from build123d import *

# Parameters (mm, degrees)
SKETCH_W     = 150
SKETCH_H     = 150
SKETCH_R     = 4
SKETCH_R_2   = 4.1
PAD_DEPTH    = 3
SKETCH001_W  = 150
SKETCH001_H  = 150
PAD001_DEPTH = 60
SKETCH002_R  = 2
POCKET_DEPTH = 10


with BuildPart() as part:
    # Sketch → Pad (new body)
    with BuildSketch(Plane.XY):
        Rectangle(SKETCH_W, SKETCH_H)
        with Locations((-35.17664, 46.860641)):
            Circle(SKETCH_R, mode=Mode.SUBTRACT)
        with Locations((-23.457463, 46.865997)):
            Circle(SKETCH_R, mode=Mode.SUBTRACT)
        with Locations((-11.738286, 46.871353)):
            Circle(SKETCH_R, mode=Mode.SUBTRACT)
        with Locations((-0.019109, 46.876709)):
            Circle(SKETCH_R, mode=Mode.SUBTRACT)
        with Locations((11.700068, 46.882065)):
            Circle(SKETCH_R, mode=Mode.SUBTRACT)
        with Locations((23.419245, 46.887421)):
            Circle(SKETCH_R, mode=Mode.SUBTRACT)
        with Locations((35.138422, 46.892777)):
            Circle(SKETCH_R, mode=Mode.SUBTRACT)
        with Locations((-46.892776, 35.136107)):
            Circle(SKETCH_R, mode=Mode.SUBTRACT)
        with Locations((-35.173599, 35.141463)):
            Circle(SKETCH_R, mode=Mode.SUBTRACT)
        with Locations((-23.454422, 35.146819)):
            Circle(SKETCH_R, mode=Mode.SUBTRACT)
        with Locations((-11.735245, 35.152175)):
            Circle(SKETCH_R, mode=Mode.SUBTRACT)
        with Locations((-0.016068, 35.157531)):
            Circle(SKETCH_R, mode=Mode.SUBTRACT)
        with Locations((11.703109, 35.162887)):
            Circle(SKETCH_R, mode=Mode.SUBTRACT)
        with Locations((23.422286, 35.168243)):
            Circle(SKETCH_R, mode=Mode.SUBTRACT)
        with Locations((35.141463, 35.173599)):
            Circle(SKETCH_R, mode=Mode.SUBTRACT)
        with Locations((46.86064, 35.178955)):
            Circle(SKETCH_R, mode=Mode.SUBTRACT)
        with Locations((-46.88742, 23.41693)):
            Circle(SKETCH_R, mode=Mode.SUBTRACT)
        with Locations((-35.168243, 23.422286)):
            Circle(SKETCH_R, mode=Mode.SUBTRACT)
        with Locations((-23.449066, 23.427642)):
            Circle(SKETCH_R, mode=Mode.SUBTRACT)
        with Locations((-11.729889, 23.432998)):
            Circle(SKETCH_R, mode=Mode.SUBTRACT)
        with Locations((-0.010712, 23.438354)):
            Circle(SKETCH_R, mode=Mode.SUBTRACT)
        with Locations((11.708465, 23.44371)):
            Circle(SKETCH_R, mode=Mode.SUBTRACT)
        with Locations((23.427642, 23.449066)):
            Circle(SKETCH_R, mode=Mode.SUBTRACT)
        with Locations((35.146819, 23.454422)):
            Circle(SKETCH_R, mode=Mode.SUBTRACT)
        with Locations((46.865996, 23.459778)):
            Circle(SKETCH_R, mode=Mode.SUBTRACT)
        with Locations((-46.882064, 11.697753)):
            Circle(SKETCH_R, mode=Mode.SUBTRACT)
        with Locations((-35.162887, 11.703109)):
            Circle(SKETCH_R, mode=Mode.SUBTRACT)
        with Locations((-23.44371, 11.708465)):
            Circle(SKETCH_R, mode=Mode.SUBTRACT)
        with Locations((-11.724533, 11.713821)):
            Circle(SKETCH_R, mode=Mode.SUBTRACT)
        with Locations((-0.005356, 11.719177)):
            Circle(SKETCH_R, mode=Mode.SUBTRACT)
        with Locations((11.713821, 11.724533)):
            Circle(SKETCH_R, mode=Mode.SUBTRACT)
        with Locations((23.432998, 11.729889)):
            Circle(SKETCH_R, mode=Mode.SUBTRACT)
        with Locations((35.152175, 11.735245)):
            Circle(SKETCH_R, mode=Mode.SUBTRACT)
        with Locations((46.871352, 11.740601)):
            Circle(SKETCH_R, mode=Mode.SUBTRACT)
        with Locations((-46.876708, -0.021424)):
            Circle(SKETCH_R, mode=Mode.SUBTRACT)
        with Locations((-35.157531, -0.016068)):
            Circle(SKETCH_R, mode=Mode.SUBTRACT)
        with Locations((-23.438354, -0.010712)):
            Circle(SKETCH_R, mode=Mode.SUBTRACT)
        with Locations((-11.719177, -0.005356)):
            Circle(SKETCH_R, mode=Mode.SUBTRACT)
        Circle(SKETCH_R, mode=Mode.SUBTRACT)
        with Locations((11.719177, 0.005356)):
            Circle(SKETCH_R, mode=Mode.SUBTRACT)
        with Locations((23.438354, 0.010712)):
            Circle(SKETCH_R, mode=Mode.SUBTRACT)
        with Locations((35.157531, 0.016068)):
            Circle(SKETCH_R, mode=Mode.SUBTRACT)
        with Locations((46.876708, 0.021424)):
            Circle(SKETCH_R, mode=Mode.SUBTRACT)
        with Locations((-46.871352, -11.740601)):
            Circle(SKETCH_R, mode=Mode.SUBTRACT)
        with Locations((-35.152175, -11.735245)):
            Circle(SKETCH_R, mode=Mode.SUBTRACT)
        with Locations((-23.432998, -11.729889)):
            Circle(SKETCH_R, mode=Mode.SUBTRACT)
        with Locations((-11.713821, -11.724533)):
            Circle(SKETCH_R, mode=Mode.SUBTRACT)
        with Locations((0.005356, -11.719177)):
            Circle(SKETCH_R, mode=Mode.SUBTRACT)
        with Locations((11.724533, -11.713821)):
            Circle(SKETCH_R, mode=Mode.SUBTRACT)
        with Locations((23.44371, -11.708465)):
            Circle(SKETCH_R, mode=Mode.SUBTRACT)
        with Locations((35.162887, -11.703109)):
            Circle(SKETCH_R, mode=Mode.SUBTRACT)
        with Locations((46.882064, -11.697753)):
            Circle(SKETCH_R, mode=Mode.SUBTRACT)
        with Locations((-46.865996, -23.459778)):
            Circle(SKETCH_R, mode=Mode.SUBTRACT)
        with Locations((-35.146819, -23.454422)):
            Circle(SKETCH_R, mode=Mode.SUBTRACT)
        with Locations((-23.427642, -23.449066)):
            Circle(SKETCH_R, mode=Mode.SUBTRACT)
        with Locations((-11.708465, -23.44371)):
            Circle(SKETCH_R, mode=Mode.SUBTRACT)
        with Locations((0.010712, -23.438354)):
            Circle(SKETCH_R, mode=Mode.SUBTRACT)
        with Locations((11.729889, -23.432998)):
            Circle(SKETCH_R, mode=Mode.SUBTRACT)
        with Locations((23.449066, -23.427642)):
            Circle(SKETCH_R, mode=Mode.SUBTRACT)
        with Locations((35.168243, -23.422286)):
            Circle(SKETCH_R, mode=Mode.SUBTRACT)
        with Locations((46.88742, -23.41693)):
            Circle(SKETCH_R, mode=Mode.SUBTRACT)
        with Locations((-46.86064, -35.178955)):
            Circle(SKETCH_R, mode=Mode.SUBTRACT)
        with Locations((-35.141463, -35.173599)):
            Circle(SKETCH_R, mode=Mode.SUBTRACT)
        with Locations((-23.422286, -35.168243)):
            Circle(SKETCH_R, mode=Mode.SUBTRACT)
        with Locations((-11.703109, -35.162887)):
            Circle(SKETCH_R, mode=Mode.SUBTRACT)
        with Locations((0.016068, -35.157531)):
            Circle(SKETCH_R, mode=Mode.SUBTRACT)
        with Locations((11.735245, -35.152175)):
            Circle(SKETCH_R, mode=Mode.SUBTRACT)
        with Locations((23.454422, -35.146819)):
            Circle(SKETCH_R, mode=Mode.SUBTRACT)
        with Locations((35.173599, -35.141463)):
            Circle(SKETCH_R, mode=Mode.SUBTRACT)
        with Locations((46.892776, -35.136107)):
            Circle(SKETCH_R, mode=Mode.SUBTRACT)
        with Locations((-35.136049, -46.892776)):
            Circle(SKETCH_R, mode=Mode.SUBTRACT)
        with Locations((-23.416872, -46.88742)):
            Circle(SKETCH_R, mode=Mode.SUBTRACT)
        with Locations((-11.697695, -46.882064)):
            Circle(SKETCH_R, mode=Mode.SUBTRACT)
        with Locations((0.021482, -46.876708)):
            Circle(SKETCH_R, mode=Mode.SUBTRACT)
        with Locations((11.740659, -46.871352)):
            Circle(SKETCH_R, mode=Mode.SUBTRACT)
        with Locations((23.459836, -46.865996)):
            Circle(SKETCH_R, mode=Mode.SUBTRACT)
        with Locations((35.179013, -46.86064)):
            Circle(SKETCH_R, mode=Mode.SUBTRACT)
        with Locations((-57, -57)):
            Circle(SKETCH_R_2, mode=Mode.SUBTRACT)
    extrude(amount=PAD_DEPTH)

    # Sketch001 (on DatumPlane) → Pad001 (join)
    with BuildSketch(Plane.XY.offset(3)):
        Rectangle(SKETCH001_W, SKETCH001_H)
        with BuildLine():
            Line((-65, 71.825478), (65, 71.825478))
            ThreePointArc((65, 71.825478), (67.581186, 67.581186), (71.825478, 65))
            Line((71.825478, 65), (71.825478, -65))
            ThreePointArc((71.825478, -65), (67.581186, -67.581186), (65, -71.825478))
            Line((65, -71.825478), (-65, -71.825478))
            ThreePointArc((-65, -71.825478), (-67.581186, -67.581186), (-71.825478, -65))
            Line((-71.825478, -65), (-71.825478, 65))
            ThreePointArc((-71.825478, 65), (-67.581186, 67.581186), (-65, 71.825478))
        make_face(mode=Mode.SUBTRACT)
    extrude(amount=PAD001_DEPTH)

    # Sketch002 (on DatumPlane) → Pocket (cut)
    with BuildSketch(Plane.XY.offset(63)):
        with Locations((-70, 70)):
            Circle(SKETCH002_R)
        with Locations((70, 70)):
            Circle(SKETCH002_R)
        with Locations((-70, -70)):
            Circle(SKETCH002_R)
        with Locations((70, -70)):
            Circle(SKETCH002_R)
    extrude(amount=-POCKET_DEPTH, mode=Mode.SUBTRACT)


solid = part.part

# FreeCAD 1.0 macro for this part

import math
import FreeCAD as App
import Part
import Sketcher


def add_polygon(sketch, points):
    """Adds a closed chain of lines whose ends are joined by coincident constraints."""
    first, n = sketch.GeometryCount, len(points)
    for a, b in zip(points, points[1:] + points[:1]):
        sketch.addGeometry(Part.LineSegment(App.Vector(*a, 0), App.Vector(*b, 0)), False)
    for i in range(n):
        sketch.addConstraint(Sketcher.Constraint("Coincident", first + i, 2, first + (i + 1) % n, 1))

doc = App.newDocument("Part")
params = doc.addObject("Spreadsheet::Sheet", "Params")
for row, (alias, value) in enumerate([
    ("sketch1_diameter", "8 mm"),
    ("sketch1_diameter2", "8.2 mm"),
    ("sketch1_width", "150 mm"),
    ("pad1_length", "3 mm"),
    ("sketch2_width", "150 mm"),
    ("sketch2_width2", "130 mm"),
    ("pad2_length", "60 mm"),
    ("sketch3_diameter", "4 mm"),
    ("pocket1_length", "10 mm"),
], start=1):
    params.set(f"A{row}", alias)
    params.set(f"B{row}", "=" + value)
    params.setAlias(f"B{row}", alias)

body = doc.addObject("PartDesign::Body", "Body")

sketch1 = body.newObject("Sketcher::SketchObject", "Sketch")
sketch1.AttachmentSupport = (doc.getObject("XY_Plane"), [""])
sketch1.MapMode = "FlatFace"
add_polygon(sketch1, [(-75, 75), (-75, -75), (75, -75), (75, 75)])
sketch1.addGeometry(Part.Circle(App.Vector(-57, -57, 0), App.Vector(0, 0, 1), 4.1), False)
sketch1.addGeometry(Part.Circle(App.Vector(-35.1, -46.9, 0), App.Vector(0, 0, 1), 4), False)
sketch1.addGeometry(Part.Circle(App.Vector(-46.9, -35.2, 0), App.Vector(0, 0, 1), 4), False)
sketch1.addGeometry(Part.Circle(App.Vector(-35.1, -35.2, 0), App.Vector(0, 0, 1), 4), False)
sketch1.addGeometry(Part.Circle(App.Vector(-23.4, -46.9, 0), App.Vector(0, 0, 1), 4), False)
sketch1.addGeometry(Part.Circle(App.Vector(-23.4, -35.2, 0), App.Vector(0, 0, 1), 4), False)
sketch1.addGeometry(Part.Circle(App.Vector(-11.7, -46.9, 0), App.Vector(0, 0, 1), 4), False)
sketch1.addGeometry(Part.Circle(App.Vector(-11.7, -35.2, 0), App.Vector(0, 0, 1), 4), False)
sketch1.addGeometry(Part.Circle(App.Vector(-46.9, -23.5, 0), App.Vector(0, 0, 1), 4), False)
sketch1.addGeometry(Part.Circle(App.Vector(-35.1, -23.5, 0), App.Vector(0, 0, 1), 4), False)
sketch1.addGeometry(Part.Circle(App.Vector(-46.9, -11.7, 0), App.Vector(0, 0, 1), 4), False)
sketch1.addGeometry(Part.Circle(App.Vector(-35.2, -11.7, 0), App.Vector(0, 0, 1), 4), False)
sketch1.addGeometry(Part.Circle(App.Vector(-23.4, -23.4, 0), App.Vector(0, 0, 1), 4), False)
sketch1.addGeometry(Part.Circle(App.Vector(-11.7, -23.4, 0), App.Vector(0, 0, 1), 4), False)
sketch1.addGeometry(Part.Circle(App.Vector(-23.4, -11.7, 0), App.Vector(0, 0, 1), 4), False)
sketch1.addGeometry(Part.Circle(App.Vector(-11.7, -11.7, 0), App.Vector(0, 0, 1), 4), False)
sketch1.addGeometry(Part.Circle(App.Vector(0, -46.9, 0), App.Vector(0, 0, 1), 4), False)
sketch1.addGeometry(Part.Circle(App.Vector(0, -35.2, 0), App.Vector(0, 0, 1), 4), False)
sketch1.addGeometry(Part.Circle(App.Vector(11.7, -46.9, 0), App.Vector(0, 0, 1), 4), False)
sketch1.addGeometry(Part.Circle(App.Vector(11.7, -35.2, 0), App.Vector(0, 0, 1), 4), False)
sketch1.addGeometry(Part.Circle(App.Vector(23.5, -46.9, 0), App.Vector(0, 0, 1), 4), False)
sketch1.addGeometry(Part.Circle(App.Vector(35.2, -46.9, 0), App.Vector(0, 0, 1), 4), False)
sketch1.addGeometry(Part.Circle(App.Vector(23.5, -35.1, 0), App.Vector(0, 0, 1), 4), False)
sketch1.addGeometry(Part.Circle(App.Vector(35.2, -35.1, 0), App.Vector(0, 0, 1), 4), False)
sketch1.addGeometry(Part.Circle(App.Vector(46.9, -35.1, 0), App.Vector(0, 0, 1), 4), False)
sketch1.addGeometry(Part.Circle(App.Vector(0, -23.4, 0), App.Vector(0, 0, 1), 4), False)
sketch1.addGeometry(Part.Circle(App.Vector(11.7, -23.4, 0), App.Vector(0, 0, 1), 4), False)
sketch1.addGeometry(Part.Circle(App.Vector(0, -11.7, 0), App.Vector(0, 0, 1), 4), False)
sketch1.addGeometry(Part.Circle(App.Vector(11.7, -11.7, 0), App.Vector(0, 0, 1), 4), False)
sketch1.addGeometry(Part.Circle(App.Vector(23.4, -23.4, 0), App.Vector(0, 0, 1), 4), False)
sketch1.addGeometry(Part.Circle(App.Vector(35.2, -23.4, 0), App.Vector(0, 0, 1), 4), False)
sketch1.addGeometry(Part.Circle(App.Vector(46.9, -23.4, 0), App.Vector(0, 0, 1), 4), False)
sketch1.addGeometry(Part.Circle(App.Vector(23.4, -11.7, 0), App.Vector(0, 0, 1), 4), False)
sketch1.addGeometry(Part.Circle(App.Vector(35.2, -11.7, 0), App.Vector(0, 0, 1), 4), False)
sketch1.addGeometry(Part.Circle(App.Vector(46.9, -11.7, 0), App.Vector(0, 0, 1), 4), False)
sketch1.addGeometry(Part.Circle(App.Vector(-46.9, 0, 0), App.Vector(0, 0, 1), 4), False)
sketch1.addGeometry(Part.Circle(App.Vector(-35.2, 0, 0), App.Vector(0, 0, 1), 4), False)
sketch1.addGeometry(Part.Circle(App.Vector(-46.9, 11.7, 0), App.Vector(0, 0, 1), 4), False)
sketch1.addGeometry(Part.Circle(App.Vector(-35.2, 11.7, 0), App.Vector(0, 0, 1), 4), False)
sketch1.addGeometry(Part.Circle(App.Vector(-23.4, 0, 0), App.Vector(0, 0, 1), 4), False)
sketch1.addGeometry(Part.Circle(App.Vector(-11.7, 0, 0), App.Vector(0, 0, 1), 4), False)
sketch1.addGeometry(Part.Circle(App.Vector(-23.4, 11.7, 0), App.Vector(0, 0, 1), 4), False)
sketch1.addGeometry(Part.Circle(App.Vector(-11.7, 11.7, 0), App.Vector(0, 0, 1), 4), False)
sketch1.addGeometry(Part.Circle(App.Vector(-46.9, 23.4, 0), App.Vector(0, 0, 1), 4), False)
sketch1.addGeometry(Part.Circle(App.Vector(-35.2, 23.4, 0), App.Vector(0, 0, 1), 4), False)
sketch1.addGeometry(Part.Circle(App.Vector(-46.9, 35.1, 0), App.Vector(0, 0, 1), 4), False)
sketch1.addGeometry(Part.Circle(App.Vector(-35.2, 35.1, 0), App.Vector(0, 0, 1), 4), False)
sketch1.addGeometry(Part.Circle(App.Vector(-35.2, 46.9, 0), App.Vector(0, 0, 1), 4), False)
sketch1.addGeometry(Part.Circle(App.Vector(-23.4, 23.4, 0), App.Vector(0, 0, 1), 4), False)
sketch1.addGeometry(Part.Circle(App.Vector(-23.5, 35.1, 0), App.Vector(0, 0, 1), 4), False)
sketch1.addGeometry(Part.Circle(App.Vector(-11.7, 23.4, 0), App.Vector(0, 0, 1), 4), False)
sketch1.addGeometry(Part.Circle(App.Vector(-11.7, 35.2, 0), App.Vector(0, 0, 1), 4), False)
sketch1.addGeometry(Part.Circle(App.Vector(-23.5, 46.9, 0), App.Vector(0, 0, 1), 4), False)
sketch1.addGeometry(Part.Circle(App.Vector(-11.7, 46.9, 0), App.Vector(0, 0, 1), 4), False)
sketch1.addGeometry(Part.Circle(App.Vector(0, 0, 0), App.Vector(0, 0, 1), 4), False)
sketch1.addGeometry(Part.Circle(App.Vector(11.7, 0, 0), App.Vector(0, 0, 1), 4), False)
sketch1.addGeometry(Part.Circle(App.Vector(0, 11.7, 0), App.Vector(0, 0, 1), 4), False)
sketch1.addGeometry(Part.Circle(App.Vector(11.7, 11.7, 0), App.Vector(0, 0, 1), 4), False)
sketch1.addGeometry(Part.Circle(App.Vector(23.4, 0, 0), App.Vector(0, 0, 1), 4), False)
sketch1.addGeometry(Part.Circle(App.Vector(35.2, 0, 0), App.Vector(0, 0, 1), 4), False)
sketch1.addGeometry(Part.Circle(App.Vector(46.9, 0, 0), App.Vector(0, 0, 1), 4), False)
sketch1.addGeometry(Part.Circle(App.Vector(23.4, 11.7, 0), App.Vector(0, 0, 1), 4), False)
sketch1.addGeometry(Part.Circle(App.Vector(35.2, 11.7, 0), App.Vector(0, 0, 1), 4), False)
sketch1.addGeometry(Part.Circle(App.Vector(46.9, 11.7, 0), App.Vector(0, 0, 1), 4), False)
sketch1.addGeometry(Part.Circle(App.Vector(0, 23.4, 0), App.Vector(0, 0, 1), 4), False)
sketch1.addGeometry(Part.Circle(App.Vector(0, 35.2, 0), App.Vector(0, 0, 1), 4), False)
sketch1.addGeometry(Part.Circle(App.Vector(11.7, 23.4, 0), App.Vector(0, 0, 1), 4), False)
sketch1.addGeometry(Part.Circle(App.Vector(11.7, 35.2, 0), App.Vector(0, 0, 1), 4), False)
sketch1.addGeometry(Part.Circle(App.Vector(0, 46.9, 0), App.Vector(0, 0, 1), 4), False)
sketch1.addGeometry(Part.Circle(App.Vector(11.7, 46.9, 0), App.Vector(0, 0, 1), 4), False)
sketch1.addGeometry(Part.Circle(App.Vector(23.4, 23.4, 0), App.Vector(0, 0, 1), 4), False)
sketch1.addGeometry(Part.Circle(App.Vector(35.1, 23.5, 0), App.Vector(0, 0, 1), 4), False)
sketch1.addGeometry(Part.Circle(App.Vector(23.4, 35.2, 0), App.Vector(0, 0, 1), 4), False)
sketch1.addGeometry(Part.Circle(App.Vector(35.1, 35.2, 0), App.Vector(0, 0, 1), 4), False)
sketch1.addGeometry(Part.Circle(App.Vector(46.9, 23.5, 0), App.Vector(0, 0, 1), 4), False)
sketch1.addGeometry(Part.Circle(App.Vector(46.9, 35.2, 0), App.Vector(0, 0, 1), 4), False)
sketch1.addGeometry(Part.Circle(App.Vector(23.4, 46.9, 0), App.Vector(0, 0, 1), 4), False)
sketch1.addGeometry(Part.Circle(App.Vector(35.1, 46.9, 0), App.Vector(0, 0, 1), 4), False)
sketch1.addConstraint([
    Sketcher.Constraint("Vertical", 0),
    Sketcher.Constraint("Horizontal", 1),
    Sketcher.Constraint("Vertical", 2),
    Sketcher.Constraint("Horizontal", 3),
    Sketcher.Constraint("Coincident", 58, 3, -1, 1),
    Sketcher.Constraint("Equal", 5, 6),
    Sketcher.Constraint("Equal", 6, 7),
    Sketcher.Constraint("Equal", 7, 8),
    Sketcher.Constraint("Equal", 8, 9),
    Sketcher.Constraint("Equal", 9, 10),
    Sketcher.Constraint("Equal", 10, 11),
    Sketcher.Constraint("Equal", 11, 12),
    Sketcher.Constraint("Equal", 12, 13),
    Sketcher.Constraint("Equal", 13, 14),
    Sketcher.Constraint("Equal", 14, 15),
    Sketcher.Constraint("Equal", 15, 16),
    Sketcher.Constraint("Equal", 16, 17),
    Sketcher.Constraint("Equal", 17, 18),
    Sketcher.Constraint("Equal", 18, 19),
    Sketcher.Constraint("Equal", 19, 20),
    Sketcher.Constraint("Equal", 20, 21),
    Sketcher.Constraint("Equal", 21, 22),
    Sketcher.Constraint("Equal", 22, 23),
    Sketcher.Constraint("Equal", 23, 24),
    Sketcher.Constraint("Equal", 24, 25),
    Sketcher.Constraint("Equal", 25, 26),
    Sketcher.Constraint("Equal", 26, 27),
    Sketcher.Constraint("Equal", 27, 28),
    Sketcher.Constraint("Equal", 28, 29),
    Sketcher.Constraint("Equal", 29, 30),
    Sketcher.Constraint("Equal", 30, 31),
    Sketcher.Constraint("Equal", 31, 32),
    Sketcher.Constraint("Equal", 32, 33),
    Sketcher.Constraint("Equal", 33, 34),
    Sketcher.Constraint("Equal", 34, 35),
    Sketcher.Constraint("Equal", 35, 36),
    Sketcher.Constraint("Equal", 36, 37),
    Sketcher.Constraint("Equal", 37, 38),
    Sketcher.Constraint("Equal", 38, 39),
    Sketcher.Constraint("Equal", 39, 40),
    Sketcher.Constraint("Equal", 40, 41),
    Sketcher.Constraint("Equal", 41, 42),
    Sketcher.Constraint("Equal", 42, 43),
    Sketcher.Constraint("Equal", 43, 44),
    Sketcher.Constraint("Equal", 44, 45),
    Sketcher.Constraint("Equal", 45, 46),
    Sketcher.Constraint("Equal", 46, 47),
    Sketcher.Constraint("Equal", 47, 48),
    Sketcher.Constraint("Equal", 48, 49),
    Sketcher.Constraint("Equal", 49, 50),
    Sketcher.Constraint("Equal", 50, 51),
    Sketcher.Constraint("Equal", 51, 52),
    Sketcher.Constraint("Equal", 52, 53),
    Sketcher.Constraint("Equal", 53, 54),
    Sketcher.Constraint("Equal", 54, 55),
    Sketcher.Constraint("Equal", 55, 56),
    Sketcher.Constraint("Equal", 56, 57),
    Sketcher.Constraint("Equal", 57, 58),
    Sketcher.Constraint("Equal", 58, 59),
    Sketcher.Constraint("Equal", 59, 60),
    Sketcher.Constraint("Equal", 60, 61),
    Sketcher.Constraint("Equal", 61, 62),
    Sketcher.Constraint("Equal", 62, 63),
    Sketcher.Constraint("Equal", 63, 64),
    Sketcher.Constraint("Equal", 64, 65),
    Sketcher.Constraint("Equal", 65, 66),
    Sketcher.Constraint("Equal", 66, 67),
    Sketcher.Constraint("Equal", 67, 68),
    Sketcher.Constraint("Equal", 68, 69),
    Sketcher.Constraint("Equal", 69, 70),
    Sketcher.Constraint("Equal", 70, 71),
    Sketcher.Constraint("Equal", 71, 72),
    Sketcher.Constraint("Equal", 72, 73),
    Sketcher.Constraint("Equal", 73, 74),
    Sketcher.Constraint("Equal", 74, 75),
    Sketcher.Constraint("Equal", 75, 76),
    Sketcher.Constraint("Equal", 76, 77),
    Sketcher.Constraint("Equal", 77, 78),
    Sketcher.Constraint("Equal", 78, 79),
    Sketcher.Constraint("Equal", 79, 80),
    Sketcher.Constraint("Equal", 80, 81),
    Sketcher.Constraint("Symmetric", 38, 3, 41, 3, -1, 1),
    Sketcher.Constraint("Symmetric", 37, 3, 42, 3, -1, 1),
    Sketcher.Constraint("Symmetric", 36, 3, 45, 3, -1, 1),
    Sketcher.Constraint("Symmetric", 32, 3, 46, 3, -1, 1),
    Sketcher.Constraint("Symmetric", 35, 3, 47, 3, -1, 1),
    Sketcher.Constraint("Symmetric", 34, 3, 48, 3, -1, 1),
    Sketcher.Constraint("Symmetric", 28, 3, 49, 3, -1, 1),
    Sketcher.Constraint("Symmetric", 27, 3, 50, 3, -1, 1),
    Sketcher.Constraint("Symmetric", 33, 3, 52, 3, -1, 1),
    Sketcher.Constraint("Symmetric", 26, 3, 53, 3, -1, 1),
    Sketcher.Constraint("Symmetric", 30, 3, 54, 3, -1, 1),
    Sketcher.Constraint("Symmetric", 23, 3, 55, 3, -1, 1),
    Sketcher.Constraint("Symmetric", 44, 3, 59, 3, -1, 1),
    Sketcher.Constraint("Symmetric", 31, 3, 60, 3, -1, 1),
    Sketcher.Constraint("Symmetric", 19, 3, 61, 3, -1, 1),
    Sketcher.Constraint("Symmetric", 43, 3, 62, 3, -1, 1),
    Sketcher.Constraint("Symmetric", 40, 3, 63, 3, -1, 1),
    Sketcher.Constraint("Symmetric", 39, 3, 64, 3, -1, 1),
    Sketcher.Constraint("Symmetric", 18, 3, 65, 3, -1, 1),
    Sketcher.Constraint("Symmetric", 15, 3, 66, 3, -1, 1),
    Sketcher.Constraint("Symmetric", 14, 3, 67, 3, -1, 1),
    Sketcher.Constraint("Symmetric", 29, 3, 68, 3, -1, 1),
    Sketcher.Constraint("Symmetric", 21, 3, 69, 3, -1, 1),
    Sketcher.Constraint("Symmetric", 17, 3, 70, 3, -1, 1),
    Sketcher.Constraint("Symmetric", 11, 3, 71, 3, -1, 1),
    Sketcher.Constraint("Symmetric", 16, 3, 74, 3, -1, 1),
    Sketcher.Constraint("Symmetric", 13, 3, 75, 3, -1, 1),
    Sketcher.Constraint("Symmetric", 9, 3, 76, 3, -1, 1),
    Sketcher.Constraint("Symmetric", 7, 3, 77, 3, -1, 1),
    Sketcher.Constraint("Symmetric", 12, 3, 78, 3, -1, 1),
    Sketcher.Constraint("Symmetric", 6, 3, 79, 3, -1, 1),
    Sketcher.Constraint("Symmetric", 0, 2, 2, 2, -1, 1),
    Sketcher.Constraint("Equal", 3, 0),
    Sketcher.Constraint("Diameter", 5, 8.0),
    Sketcher.Constraint("Diameter", 4, 8.2),
    Sketcher.Constraint("DistanceX", 1, 1, 1, 2, 150.0),
    Sketcher.Constraint("DistanceX", 4, 3, -1, 1, 57.0),
    Sketcher.Constraint("DistanceY", 4, 3, -1, 1, 57.0),
    Sketcher.Constraint("DistanceX", 18, 3, -1, 1, 23.432998),
    Sketcher.Constraint("DistanceY", 30, 3, -1, 1, 23.432998),
    Sketcher.Constraint("DistanceY", 7, 3, -1, 1, 35.173599),
    Sketcher.Constraint("DistanceY", 14, 3, -1, 1, 11.740601),
    Sketcher.Constraint("DistanceX", -1, 1, 27, 3, 35.173599),
    Sketcher.Constraint("DistanceX", 5, 3, -1, 1, 35.136049),
    Sketcher.Constraint("DistanceX", 6, 3, -1, 1, 46.86064),
    Sketcher.Constraint("DistanceY", 8, 3, -1, 1, 46.88742),
    Sketcher.Constraint("DistanceX", 11, 3, -1, 1, 11.703109),
    Sketcher.Constraint("DistanceY", 12, 3, -1, 1, 23.459778),
    Sketcher.Constraint("DistanceX", 13, 3, -1, 1, 35.146819),
    Sketcher.Constraint("DistanceX", 16, 3, -1, 1, 23.427642),
    Sketcher.Constraint("DistanceY", 17, 3, -1, 1, 23.44371),
    Sketcher.Constraint("DistanceY", 18, 3, -1, 1, 11.729889),
    Sketcher.Constraint("DistanceX", 19, 3, -1, 1, 11.713821),
    Sketcher.Constraint("DistanceY", 21, 3, -1, 1, 35.157531),
    Sketcher.Constraint("DistanceX", -1, 1, 22, 3, 11.740659),
    Sketcher.Constraint("DistanceY", 25, 3, -1, 1, 46.86064),
    Sketcher.Constraint("DistanceY", 26, 3, -1, 1, 35.146819),
    Sketcher.Constraint("DistanceX", -1, 1, 29, 3, 0.010712),
    Sketcher.Constraint("DistanceX", -1, 1, 30, 3, 11.729889),
    Sketcher.Constraint("DistanceY", 32, 3, -1, 1, 11.713821),
    Sketcher.Constraint("DistanceY", 33, 3, -1, 1, 23.427642),
    Sketcher.Constraint("DistanceX", -1, 1, 35, 3, 46.88742),
    Sketcher.Constraint("DistanceY", 35, 3, -1, 1, 23.41693),
    Sketcher.Constraint("DistanceX", -1, 1, 36, 3, 23.44371),
    Sketcher.Constraint("DistanceY", 37, 3, -1, 1, 11.703109),
    Sketcher.Constraint("DistanceX", 40, 3, -1, 1, 35.157531),
    Sketcher.Constraint("DistanceY", 43, 3, -1, 1, 0.010712),
    Sketcher.Constraint("DistanceX", 51, 3, -1, 1, 35.17664),
    Sketcher.Constraint("DistanceY", -1, 1, 51, 3, 46.860641),
    Sketcher.Constraint("DistanceX", 72, 3, -1, 1, 0.019109),
    Sketcher.Constraint("DistanceY", -1, 1, 72, 3, 46.876709),
    Sketcher.Constraint("DistanceY", -1, 1, 80, 3, 46.887421),
    Sketcher.Constraint("DistanceX", -1, 1, 81, 3, 35.138422),
    Sketcher.Constraint("DistanceY", 5, 3, -1, 1, 46.892776),
    Sketcher.Constraint("DistanceY", 6, 3, -1, 1, 35.178955),
    Sketcher.Constraint("DistanceX", 7, 3, -1, 1, 35.141463),
    Sketcher.Constraint("DistanceX", 8, 3, -1, 1, 23.416872),
    Sketcher.Constraint("DistanceX", 9, 3, -1, 1, 23.422286),
    Sketcher.Constraint("DistanceY", 9, 3, -1, 1, 35.168243),
    Sketcher.Constraint("DistanceX", 10, 3, -1, 1, 11.697695),
    Sketcher.Constraint("DistanceY", 10, 3, -1, 1, 46.882064),
    Sketcher.Constraint("DistanceY", 11, 3, -1, 1, 35.162887),
    Sketcher.Constraint("DistanceX", 12, 3, -1, 1, 46.865996),
    Sketcher.Constraint("DistanceY", 13, 3, -1, 1, 23.454422),
    Sketcher.Constraint("DistanceX", 14, 3, -1, 1, 46.871352),
    Sketcher.Constraint("DistanceX", 15, 3, -1, 1, 35.152175),
    Sketcher.Constraint("DistanceY", 15, 3, -1, 1, 11.735245),
    Sketcher.Constraint("DistanceY", 16, 3, -1, 1, 23.449066),
    Sketcher.Constraint("DistanceX", 17, 3, -1, 1, 11.708465),
    Sketcher.Constraint("DistanceY", 19, 3, -1, 1, 11.724533),
    Sketcher.Constraint("DistanceX", -1, 1, 20, 3, 0.021482),
    Sketcher.Constraint("DistanceY", 20, 3, -1, 1, 46.876708),
    Sketcher.Constraint("DistanceX", -1, 1, 21, 3, 0.016068),
    Sketcher.Constraint("DistanceY", 22, 3, -1, 1, 46.871352),
    Sketcher.Constraint("DistanceX", -1, 1, 23, 3, 11.735245),
    Sketcher.Constraint("DistanceY", 23, 3, -1, 1, 35.152175),
    Sketcher.Constraint("DistanceX", -1, 1, 24, 3, 23.459836),
    Sketcher.Constraint("DistanceY", 24, 3, -1, 1, 46.865996),
    Sketcher.Constraint("DistanceX", -1, 1, 25, 3, 35.179013),
    Sketcher.Constraint("DistanceX", -1, 1, 26, 3, 23.454422),
    Sketcher.Constraint("DistanceY", 27, 3, -1, 1, 35.141463),
    Sketcher.Constraint("DistanceX", -1, 1, 28, 3, 46.892776),
    Sketcher.Constraint("DistanceY", 28, 3, -1, 1, 35.136107),
    Sketcher.Constraint("DistanceY", 29, 3, -1, 1, 23.438354),
    Sketcher.Constraint("DistanceX", -1, 1, 31, 3, 0.005356),
    Sketcher.Constraint("DistanceY", 31, 3, -1, 1, 11.719177),
    Sketcher.Constraint("DistanceX", -1, 1, 32, 3, 11.724533),
    Sketcher.Constraint("DistanceX", -1, 1, 33, 3, 23.449066),
    Sketcher.Constraint("DistanceX", -1, 1, 34, 3, 35.168243),
    Sketcher.Constraint("DistanceY", 34, 3, -1, 1, 23.422286),
    Sketcher.Constraint("DistanceY", 36, 3, -1, 1, 11.708465),
    Sketcher.Constraint("DistanceX", -1, 1, 37, 3, 35.162887),
    Sketcher.Constraint("DistanceX", -1, 1, 38, 3, 46.882064),
    Sketcher.Constraint("DistanceY", 38, 3, -1, 1, 11.697753),
    Sketcher.Constraint("DistanceX", 39, 3, -1, 1, 46.876708),
    Sketcher.Constraint("DistanceY", 39, 3, -1, 1, 0.021424),
    Sketcher.Constraint("DistanceY", 40, 3, -1, 1, 0.016068),
    Sketcher.Constraint("DistanceX", 43, 3, -1, 1, 23.438354),
    Sketcher.Constraint("DistanceX", 44, 3, -1, 1, 11.719177),
    Sketcher.Constraint("DistanceY", 44, 3, -1, 1, 0.005356),
    Sketcher.Constraint("DistanceX", 56, 3, -1, 1, 23.457463),
    Sketcher.Constraint("DistanceY", -1, 1, 56, 3, 46.865997),
    Sketcher.Constraint("DistanceX", 57, 3, -1, 1, 11.738286),
    Sketcher.Constraint("DistanceY", -1, 1, 57, 3, 46.871353),
    Sketcher.Constraint("DistanceX", -1, 1, 73, 3, 11.700068),
    Sketcher.Constraint("DistanceY", -1, 1, 73, 3, 46.882065),
    Sketcher.Constraint("DistanceX", -1, 1, 80, 3, 23.419245),
    Sketcher.Constraint("DistanceY", -1, 1, 81, 3, 46.892777),
])
sketch1.setExpression("Constraints[118]", "Params.sketch1_diameter")
sketch1.setExpression("Constraints[119]", "Params.sketch1_diameter2")
sketch1.setExpression("Constraints[120]", "Params.sketch1_width")
pad1 = body.newObject("PartDesign::Pad", "Pad")
pad1.Profile = sketch1
pad1.setExpression("Length", "Params.pad1_length")

sketch2 = body.newObject("Sketcher::SketchObject", "Sketch001")
sketch2.AttachmentSupport = (doc.getObject("XY_Plane"), [""])
sketch2.MapMode = "FlatFace"
sketch2.AttachmentOffset = App.Placement(App.Vector(0, 0, 3), App.Rotation())
add_polygon(sketch2, [(-75, 75), (-75, -75), (75, -75), (75, 75)])
sketch2.addGeometry(Part.ArcOfCircle(Part.Circle(App.Vector(-75, 75, 0), App.Vector(0, 0, 1), 10), math.radians(-72), math.radians(-18)), False)
sketch2.addGeometry(Part.LineSegment(App.Vector(-65, 72, 0), App.Vector(65, 72, 0)), False)
sketch2.addGeometry(Part.ArcOfCircle(Part.Circle(App.Vector(75, 75, 0), App.Vector(0, 0, 1), 10), math.radians(-162), math.radians(-108)), False)
sketch2.addGeometry(Part.LineSegment(App.Vector(72, 65, 0), App.Vector(72, -65, 0)), False)
sketch2.addGeometry(Part.ArcOfCircle(Part.Circle(App.Vector(75, -75, 0), App.Vector(0, 0, 1), 10), math.radians(108), math.radians(162)), False)
sketch2.addGeometry(Part.LineSegment(App.Vector(65, -72, 0), App.Vector(-65, -72, 0)), False)
sketch2.addGeometry(Part.ArcOfCircle(Part.Circle(App.Vector(-75, -75, 0), App.Vector(0, 0, 1), 10), math.radians(18), math.radians(72)), False)
sketch2.addGeometry(Part.LineSegment(App.Vector(-72, -65, 0), App.Vector(-72, 65, 0)), False)
sketch2.addConstraint([
    Sketcher.Constraint("Coincident", 4, 2, 5, 1),
    Sketcher.Constraint("Coincident", 5, 2, 6, 1),
    Sketcher.Constraint("Coincident", 6, 2, 7, 1),
    Sketcher.Constraint("Coincident", 7, 2, 8, 1),
    Sketcher.Constraint("Coincident", 8, 2, 9, 1),
    Sketcher.Constraint("Coincident", 9, 2, 10, 1),
    Sketcher.Constraint("Coincident", 10, 2, 11, 1),
    Sketcher.Constraint("Coincident", 11, 2, 4, 1),
    Sketcher.Constraint("Vertical", 0),
    Sketcher.Constraint("Horizontal", 1),
    Sketcher.Constraint("Vertical", 2),
    Sketcher.Constraint("Horizontal", 3),
    Sketcher.Constraint("Horizontal", 5),
    Sketcher.Constraint("Vertical", 7),
    Sketcher.Constraint("Horizontal", 9),
    Sketcher.Constraint("Vertical", 11),
    Sketcher.Constraint("Coincident", 0, 2, 10, 3),
    Sketcher.Constraint("Coincident", 1, 2, 8, 3),
    Sketcher.Constraint("Coincident", 2, 2, 6, 3),
    Sketcher.Constraint("Coincident", 3, 2, 4, 3),
    Sketcher.Constraint("Equal", 4, 6),
    Sketcher.Constraint("Equal", 6, 8),
    Sketcher.Constraint("Equal", 8, 10),
    Sketcher.Constraint("Symmetric", 4, 3, 8, 3, -1, 1),
    Sketcher.Constraint("Horizontal", 7, 2, 10, 2),
    Sketcher.Constraint("Vertical", 5, 2, 8, 2),
    Sketcher.Constraint("Equal", 3, 0),
    Sketcher.Constraint("Equal", 9, 7),
    Sketcher.Constraint("DistanceX", 1, 1, 1, 2, 150.0),
    Sketcher.Constraint("DistanceX", 5, 1, 5, 2, 130.0),
    Sketcher.Constraint("Radius", 4, 10.491782),
])
sketch2.setExpression("Constraints[32]", "Params.sketch2_width")
sketch2.setExpression("Constraints[33]", "Params.sketch2_width2")
pad2 = body.newObject("PartDesign::Pad", "Pad001")
pad2.Profile = sketch2
pad2.setExpression("Length", "Params.pad2_length")

sketch3 = body.newObject("Sketcher::SketchObject", "Sketch002")
sketch3.AttachmentSupport = (doc.getObject("XY_Plane"), [""])
sketch3.MapMode = "FlatFace"
sketch3.AttachmentOffset = App.Placement(App.Vector(0, 0, 63), App.Rotation())
sketch3.addGeometry([
    Part.Circle(App.Vector(-70, 70, 0), App.Vector(0, 0, 1), 2),
    Part.Circle(App.Vector(70, 70, 0), App.Vector(0, 0, 1), 2),
    Part.Circle(App.Vector(-70, -70, 0), App.Vector(0, 0, 1), 2),
    Part.Circle(App.Vector(70, -70, 0), App.Vector(0, 0, 1), 2),
], False)
sketch3.addConstraint([
    Sketcher.Constraint("Equal", 0, 1),
    Sketcher.Constraint("Equal", 1, 2),
    Sketcher.Constraint("Equal", 2, 3),
    Sketcher.Constraint("Symmetric", 1, 3, 2, 3, -1, 1),
    Sketcher.Constraint("Symmetric", 0, 3, 3, 3, -1, 1),
    Sketcher.Constraint("Symmetric", 0, 3, 1, 3, -2),
    Sketcher.Constraint("Diameter", 0, 4.0),
    Sketcher.Constraint("DistanceX", 0, 3, -1, 1, 70.0),
    Sketcher.Constraint("DistanceY", -1, 1, 0, 3, 70.0),
])
sketch3.setExpression("Constraints[6]", "Params.sketch3_diameter")
pocket1 = body.newObject("PartDesign::Pocket", "Pocket")
pocket1.Profile = sketch3
pocket1.setExpression("Length", "Params.pocket1_length")

doc.recompute()
